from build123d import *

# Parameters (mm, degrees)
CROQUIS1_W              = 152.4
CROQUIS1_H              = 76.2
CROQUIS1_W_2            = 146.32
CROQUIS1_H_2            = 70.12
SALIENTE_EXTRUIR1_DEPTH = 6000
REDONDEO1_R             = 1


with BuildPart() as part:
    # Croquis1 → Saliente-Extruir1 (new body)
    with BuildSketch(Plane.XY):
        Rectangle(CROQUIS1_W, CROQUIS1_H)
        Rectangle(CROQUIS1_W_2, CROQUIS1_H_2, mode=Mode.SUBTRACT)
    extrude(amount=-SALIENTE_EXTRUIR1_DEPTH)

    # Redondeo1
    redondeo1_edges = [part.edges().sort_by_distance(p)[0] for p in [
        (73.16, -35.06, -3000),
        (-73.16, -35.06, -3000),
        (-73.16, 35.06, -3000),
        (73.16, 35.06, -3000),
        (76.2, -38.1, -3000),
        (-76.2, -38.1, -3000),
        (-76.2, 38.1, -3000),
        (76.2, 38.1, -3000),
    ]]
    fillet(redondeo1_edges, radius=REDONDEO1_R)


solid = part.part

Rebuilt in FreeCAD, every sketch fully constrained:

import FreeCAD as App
import Part
import Sketcher
from FreeCAD import Vector


def edges_at(feature, points):
    """Names of the edges that pass closest to the given points."""
    edges = feature.Shape.Edges
    near = lambda p: min(range(len(edges)), key=lambda i: edges[i].distToShape(Part.Vertex(*p))[0])
    return sorted({f"Edge{near(p) + 1}" for p in points})


def add_polygon(sketch, points):
    """Adds a closed chain of lines whose ends are joined by coincident constraints."""
    first, n = sketch.GeometryCount, len(points)
    for a, b in zip(points, points[1:] + points[:1]):
        sketch.addGeometry(Part.LineSegment(App.Vector(*a, 0), App.Vector(*b, 0)), False)
    for i in range(n):
        sketch.addConstraint(Sketcher.Constraint("Coincident", first + i, 2, first + (i + 1) % n, 1))

doc = App.newDocument("Part")
body = doc.addObject("PartDesign::Body", "Body")

sketch1 = doc.addObject("Sketcher::SketchObject", "Sketch")
body.addObject(sketch1)
sketch1.AttachmentSupport = (doc.XY_Plane, [""])
sketch1.MapMode = "FlatFace"
add_polygon(sketch1, [(-76, 38), (-76, -38), (76, -38), (76, 38)])
add_polygon(sketch1, [(73, -35), (-73, -35), (-73, 35), (73, 35)])
sketch1.addConstraint([
    Sketcher.Constraint("Vertical", 0),
    Sketcher.Constraint("Horizontal", 1),
    Sketcher.Constraint("Vertical", 2),
    Sketcher.Constraint("Horizontal", 3),
    Sketcher.Constraint("Horizontal", 4),
    Sketcher.Constraint("Vertical", 5),
    Sketcher.Constraint("Horizontal", 6),
    Sketcher.Constraint("Vertical", 7),
    Sketcher.Constraint("Symmetric", 0, 2, 2, 2, -1, 1),
    Sketcher.Constraint("Symmetric", 4, 2, 6, 2, -1, 1),
    Sketcher.Constraint("DistanceX", 1, 1, 1, 2, 152.4),
    Sketcher.Constraint("DistanceY", 0, 2, 0, 1, 76.2),
    Sketcher.Constraint("DistanceX", 4, 2, 4, 1, 146.32),
    Sketcher.Constraint("DistanceY", 5, 1, 5, 2, 70.12),
])
pad1 = doc.addObject("PartDesign::Pad", "Pad")
body.addObject(pad1)
pad1.Profile = sketch1
pad1.Length = 6000
pad1.Reversed = True
doc.recompute()

fillet = doc.addObject("PartDesign::Fillet", "Fillet")
body.addObject(fillet)
fillet.Base = (pad1, edges_at(pad1, [
    (73.16, -35.06, -3000),
    (-73.16, -35.06, -3000),
    (-73.16, 35.06, -3000),
    (73.16, 35.06, -3000),
    (76.2, -38.1, -3000),
    (-76.2, -38.1, -3000),
    (-76.2, 38.1, -3000),
    (76.2, 38.1, -3000),
]))
fillet.Radius = 1

doc.recompute()
